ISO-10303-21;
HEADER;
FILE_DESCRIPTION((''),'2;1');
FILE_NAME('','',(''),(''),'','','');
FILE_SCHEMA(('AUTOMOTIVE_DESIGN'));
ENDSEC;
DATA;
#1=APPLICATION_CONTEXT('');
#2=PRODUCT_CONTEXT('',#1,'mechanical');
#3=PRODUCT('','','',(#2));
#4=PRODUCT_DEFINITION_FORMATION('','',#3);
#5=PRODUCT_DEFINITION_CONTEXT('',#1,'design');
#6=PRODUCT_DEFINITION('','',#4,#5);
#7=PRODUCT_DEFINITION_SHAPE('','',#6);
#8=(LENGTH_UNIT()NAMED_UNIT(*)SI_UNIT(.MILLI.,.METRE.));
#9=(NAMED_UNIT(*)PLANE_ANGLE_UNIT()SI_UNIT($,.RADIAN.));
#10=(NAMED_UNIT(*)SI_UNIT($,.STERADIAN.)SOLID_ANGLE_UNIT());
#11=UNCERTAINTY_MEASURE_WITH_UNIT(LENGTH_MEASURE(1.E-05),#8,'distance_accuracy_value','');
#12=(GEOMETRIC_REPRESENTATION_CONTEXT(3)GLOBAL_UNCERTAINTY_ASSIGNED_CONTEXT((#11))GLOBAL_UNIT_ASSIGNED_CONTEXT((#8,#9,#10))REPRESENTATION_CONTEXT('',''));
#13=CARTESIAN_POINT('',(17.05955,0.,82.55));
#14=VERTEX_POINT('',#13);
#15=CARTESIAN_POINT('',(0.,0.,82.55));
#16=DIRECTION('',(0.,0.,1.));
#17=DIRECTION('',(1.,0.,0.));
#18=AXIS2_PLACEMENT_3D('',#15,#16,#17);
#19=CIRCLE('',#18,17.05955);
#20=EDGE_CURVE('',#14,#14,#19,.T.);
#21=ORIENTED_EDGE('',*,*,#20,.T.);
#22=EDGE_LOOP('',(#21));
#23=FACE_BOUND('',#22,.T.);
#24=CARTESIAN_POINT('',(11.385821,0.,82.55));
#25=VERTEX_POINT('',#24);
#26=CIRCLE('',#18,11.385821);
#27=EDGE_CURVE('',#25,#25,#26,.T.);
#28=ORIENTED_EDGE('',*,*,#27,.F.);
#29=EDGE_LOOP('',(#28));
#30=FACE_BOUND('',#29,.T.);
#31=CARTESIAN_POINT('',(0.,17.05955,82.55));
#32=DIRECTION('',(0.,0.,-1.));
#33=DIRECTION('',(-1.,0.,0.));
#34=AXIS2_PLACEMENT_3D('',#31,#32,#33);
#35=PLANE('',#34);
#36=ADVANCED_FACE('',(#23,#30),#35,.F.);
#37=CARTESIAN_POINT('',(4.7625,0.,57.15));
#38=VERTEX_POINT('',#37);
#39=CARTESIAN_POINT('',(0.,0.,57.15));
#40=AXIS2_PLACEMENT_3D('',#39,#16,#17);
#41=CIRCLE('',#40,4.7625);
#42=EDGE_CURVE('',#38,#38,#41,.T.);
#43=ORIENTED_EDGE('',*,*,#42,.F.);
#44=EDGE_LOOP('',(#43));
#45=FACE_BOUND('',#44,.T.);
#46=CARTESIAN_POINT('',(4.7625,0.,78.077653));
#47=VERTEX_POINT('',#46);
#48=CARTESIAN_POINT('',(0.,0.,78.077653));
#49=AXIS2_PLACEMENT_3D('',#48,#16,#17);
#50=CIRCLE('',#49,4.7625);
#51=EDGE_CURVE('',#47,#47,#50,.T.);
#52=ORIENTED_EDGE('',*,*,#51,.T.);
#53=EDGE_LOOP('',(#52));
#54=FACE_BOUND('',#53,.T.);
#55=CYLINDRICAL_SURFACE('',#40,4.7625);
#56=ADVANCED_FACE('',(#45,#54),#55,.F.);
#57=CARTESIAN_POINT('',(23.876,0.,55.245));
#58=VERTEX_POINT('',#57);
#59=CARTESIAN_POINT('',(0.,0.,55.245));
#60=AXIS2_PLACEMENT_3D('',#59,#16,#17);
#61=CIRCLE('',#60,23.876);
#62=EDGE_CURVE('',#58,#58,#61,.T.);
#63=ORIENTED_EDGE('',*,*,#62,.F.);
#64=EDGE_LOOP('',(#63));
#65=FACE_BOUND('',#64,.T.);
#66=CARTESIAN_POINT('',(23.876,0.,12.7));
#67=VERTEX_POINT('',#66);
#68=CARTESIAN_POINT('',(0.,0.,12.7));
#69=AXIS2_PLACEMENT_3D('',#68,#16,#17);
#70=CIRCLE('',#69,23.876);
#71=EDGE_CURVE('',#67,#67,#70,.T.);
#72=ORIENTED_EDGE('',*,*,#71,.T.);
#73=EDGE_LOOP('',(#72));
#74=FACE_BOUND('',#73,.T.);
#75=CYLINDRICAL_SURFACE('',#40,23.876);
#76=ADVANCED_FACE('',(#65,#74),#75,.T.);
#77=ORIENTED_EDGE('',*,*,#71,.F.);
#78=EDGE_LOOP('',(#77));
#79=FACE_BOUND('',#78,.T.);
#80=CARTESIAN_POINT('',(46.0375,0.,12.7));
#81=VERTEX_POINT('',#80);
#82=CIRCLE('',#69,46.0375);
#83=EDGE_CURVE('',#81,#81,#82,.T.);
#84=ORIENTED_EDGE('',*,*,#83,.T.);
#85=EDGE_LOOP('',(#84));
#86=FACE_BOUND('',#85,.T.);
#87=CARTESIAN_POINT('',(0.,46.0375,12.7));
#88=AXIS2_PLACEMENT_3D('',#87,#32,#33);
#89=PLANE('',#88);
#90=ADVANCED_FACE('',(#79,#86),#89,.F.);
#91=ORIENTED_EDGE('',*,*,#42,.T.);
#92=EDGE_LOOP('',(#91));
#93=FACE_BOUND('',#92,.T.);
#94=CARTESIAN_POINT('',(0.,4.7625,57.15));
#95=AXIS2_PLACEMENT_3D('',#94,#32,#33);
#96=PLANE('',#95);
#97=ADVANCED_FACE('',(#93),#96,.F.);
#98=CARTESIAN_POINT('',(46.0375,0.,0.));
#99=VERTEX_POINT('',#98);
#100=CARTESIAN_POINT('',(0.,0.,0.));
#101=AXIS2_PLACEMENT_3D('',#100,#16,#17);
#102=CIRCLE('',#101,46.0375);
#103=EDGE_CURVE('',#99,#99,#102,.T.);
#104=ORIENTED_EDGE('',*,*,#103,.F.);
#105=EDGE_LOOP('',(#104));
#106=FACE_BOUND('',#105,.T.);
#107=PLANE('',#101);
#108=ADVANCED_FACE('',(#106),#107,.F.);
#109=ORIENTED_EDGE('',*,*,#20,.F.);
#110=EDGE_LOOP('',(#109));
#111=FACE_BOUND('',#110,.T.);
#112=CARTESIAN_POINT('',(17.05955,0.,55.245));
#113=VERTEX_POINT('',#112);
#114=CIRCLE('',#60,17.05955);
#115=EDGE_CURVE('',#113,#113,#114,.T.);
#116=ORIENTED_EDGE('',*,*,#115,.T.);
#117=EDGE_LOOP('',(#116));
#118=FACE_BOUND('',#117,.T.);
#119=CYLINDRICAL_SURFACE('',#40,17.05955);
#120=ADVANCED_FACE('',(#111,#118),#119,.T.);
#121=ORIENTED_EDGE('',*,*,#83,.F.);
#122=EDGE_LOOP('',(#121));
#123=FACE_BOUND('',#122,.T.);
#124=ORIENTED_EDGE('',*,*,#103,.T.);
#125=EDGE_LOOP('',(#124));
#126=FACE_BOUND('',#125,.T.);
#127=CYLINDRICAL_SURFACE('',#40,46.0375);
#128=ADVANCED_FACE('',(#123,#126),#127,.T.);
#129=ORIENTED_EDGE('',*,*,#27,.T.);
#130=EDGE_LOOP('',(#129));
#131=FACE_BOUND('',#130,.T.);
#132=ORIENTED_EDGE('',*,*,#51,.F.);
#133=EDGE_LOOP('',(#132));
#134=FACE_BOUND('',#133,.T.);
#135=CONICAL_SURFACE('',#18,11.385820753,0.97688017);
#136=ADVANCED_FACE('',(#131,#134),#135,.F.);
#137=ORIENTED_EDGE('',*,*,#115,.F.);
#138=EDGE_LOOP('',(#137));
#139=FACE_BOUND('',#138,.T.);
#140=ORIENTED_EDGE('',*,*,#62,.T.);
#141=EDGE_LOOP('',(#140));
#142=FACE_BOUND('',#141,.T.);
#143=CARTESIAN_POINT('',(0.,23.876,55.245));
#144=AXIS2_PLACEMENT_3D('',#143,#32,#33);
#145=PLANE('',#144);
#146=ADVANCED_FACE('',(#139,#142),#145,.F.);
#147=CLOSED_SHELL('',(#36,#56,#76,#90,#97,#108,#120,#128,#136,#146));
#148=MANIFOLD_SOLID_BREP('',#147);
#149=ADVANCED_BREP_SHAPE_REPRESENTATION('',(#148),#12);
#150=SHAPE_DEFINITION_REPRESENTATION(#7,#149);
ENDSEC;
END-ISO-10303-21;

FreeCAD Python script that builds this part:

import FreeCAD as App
import Part
import Sketcher

V = App.Vector
Q = App.Units.Quantity

doc = App.newDocument("Part")
body = doc.addObject("PartDesign::Body", "Body")

# Sketch on YZ plane
sketch1 = body.newObject("Sketcher::SketchObject", "Sketch")
sketch1.AttachmentSupport = (doc.getObject("YZ_Plane"), [""])
sketch1.MapMode = "FlatFace"
sketch1.addGeometry([
    Part.LineSegment(V(0, 0, 0), V(46, 0, 0)),  # 0
    Part.LineSegment(V(46, 0, 0), V(46, 12.7, 0)),  # 1
    Part.LineSegment(V(46, 12.7, 0), V(23.9, 12.7, 0)),  # 2
    Part.LineSegment(V(23.9, 12.7, 0), V(23.9, 55.2, 0)),  # 3
    Part.LineSegment(V(23.9, 55.2, 0), V(17.1, 55.2, 0)),  # 4
    Part.LineSegment(V(17.1, 55.2, 0), V(17.1, 82.5, 0)),  # 5
    Part.LineSegment(V(17.1, 82.5, 0), V(11.4, 82.5, 0)),  # 6
    Part.LineSegment(V(11.4, 82.5, 0), V(4.8, 78.1, 0)),  # 7
    Part.LineSegment(V(4.8, 78.1, 0), V(4.8, 57.1, 0)),  # 8
    Part.LineSegment(V(4.8, 57.1, 0), V(0, 57.1, 0)),  # 9
    Part.LineSegment(V(0, 57.1, 0), V(0, 0, 0)),  # 10
], False)
sketch1.addConstraint([
    Sketcher.Constraint("Coincident", 0, 2, 1, 1),
    Sketcher.Constraint("Coincident", 1, 2, 2, 1),
    Sketcher.Constraint("Coincident", 2, 2, 3, 1),
    Sketcher.Constraint("Coincident", 3, 2, 4, 1),
    Sketcher.Constraint("Coincident", 4, 2, 5, 1),
    Sketcher.Constraint("Coincident", 5, 2, 6, 1),
    Sketcher.Constraint("Coincident", 6, 2, 7, 1),
    Sketcher.Constraint("Coincident", 7, 2, 8, 1),
    Sketcher.Constraint("Coincident", 8, 2, 9, 1),
    Sketcher.Constraint("Coincident", 9, 2, 10, 1),
    Sketcher.Constraint("Coincident", 10, 2, 0, 1),
    Sketcher.Constraint("Horizontal", 0),
    Sketcher.Constraint("Vertical", 1),
    Sketcher.Constraint("Horizontal", 2),
    Sketcher.Constraint("Vertical", 3),
    Sketcher.Constraint("Horizontal", 4),
    Sketcher.Constraint("Vertical", 5),
    Sketcher.Constraint("Horizontal", 6),
    Sketcher.Constraint("Vertical", 8),
    Sketcher.Constraint("Horizontal", 9),
    Sketcher.Constraint("Vertical", 10),
    Sketcher.Constraint("Coincident", 10, 2, -1, 1),
    Sketcher.Constraint("DistanceY", 1, 1, 1, 2, Q("0.5 in")),
    Sketcher.Constraint("DistanceY", 8, 2, 6, 2, Q("1 in")),
    Sketcher.Constraint("DistanceY", 10, 2, 10, 1, Q("2.25 in")),
    Sketcher.Constraint("DistanceX", 0, 1, 0, 2, Q("1.8125 in")),
    Sketcher.Constraint("DistanceX", 9, 2, 9, 1, Q("0.1875 in")),
    Sketcher.Constraint("DistanceY", 3, 1, 3, 2, Q("1.675 in")),
    Sketcher.Constraint("DistanceX", -1, 1, 2, 2, Q("0.94 in")),
    Sketcher.Constraint("DistanceX", 4, 2, 4, 1, Q("6.81645 mm")),
    Sketcher.Constraint("DistanceX", 6, 2, 6, 1, Q("5.673729 mm")),
    Sketcher.Constraint("DistanceY", 8, 2, 8, 1, Q("20.927653 mm")),
])
revolution = body.newObject("PartDesign::Revolution", "Revolution")
revolution.Profile = sketch1
revolution.ReferenceAxis = (sketch1, ["V_Axis"])
revolution.Angle = 360

doc.recompute()
